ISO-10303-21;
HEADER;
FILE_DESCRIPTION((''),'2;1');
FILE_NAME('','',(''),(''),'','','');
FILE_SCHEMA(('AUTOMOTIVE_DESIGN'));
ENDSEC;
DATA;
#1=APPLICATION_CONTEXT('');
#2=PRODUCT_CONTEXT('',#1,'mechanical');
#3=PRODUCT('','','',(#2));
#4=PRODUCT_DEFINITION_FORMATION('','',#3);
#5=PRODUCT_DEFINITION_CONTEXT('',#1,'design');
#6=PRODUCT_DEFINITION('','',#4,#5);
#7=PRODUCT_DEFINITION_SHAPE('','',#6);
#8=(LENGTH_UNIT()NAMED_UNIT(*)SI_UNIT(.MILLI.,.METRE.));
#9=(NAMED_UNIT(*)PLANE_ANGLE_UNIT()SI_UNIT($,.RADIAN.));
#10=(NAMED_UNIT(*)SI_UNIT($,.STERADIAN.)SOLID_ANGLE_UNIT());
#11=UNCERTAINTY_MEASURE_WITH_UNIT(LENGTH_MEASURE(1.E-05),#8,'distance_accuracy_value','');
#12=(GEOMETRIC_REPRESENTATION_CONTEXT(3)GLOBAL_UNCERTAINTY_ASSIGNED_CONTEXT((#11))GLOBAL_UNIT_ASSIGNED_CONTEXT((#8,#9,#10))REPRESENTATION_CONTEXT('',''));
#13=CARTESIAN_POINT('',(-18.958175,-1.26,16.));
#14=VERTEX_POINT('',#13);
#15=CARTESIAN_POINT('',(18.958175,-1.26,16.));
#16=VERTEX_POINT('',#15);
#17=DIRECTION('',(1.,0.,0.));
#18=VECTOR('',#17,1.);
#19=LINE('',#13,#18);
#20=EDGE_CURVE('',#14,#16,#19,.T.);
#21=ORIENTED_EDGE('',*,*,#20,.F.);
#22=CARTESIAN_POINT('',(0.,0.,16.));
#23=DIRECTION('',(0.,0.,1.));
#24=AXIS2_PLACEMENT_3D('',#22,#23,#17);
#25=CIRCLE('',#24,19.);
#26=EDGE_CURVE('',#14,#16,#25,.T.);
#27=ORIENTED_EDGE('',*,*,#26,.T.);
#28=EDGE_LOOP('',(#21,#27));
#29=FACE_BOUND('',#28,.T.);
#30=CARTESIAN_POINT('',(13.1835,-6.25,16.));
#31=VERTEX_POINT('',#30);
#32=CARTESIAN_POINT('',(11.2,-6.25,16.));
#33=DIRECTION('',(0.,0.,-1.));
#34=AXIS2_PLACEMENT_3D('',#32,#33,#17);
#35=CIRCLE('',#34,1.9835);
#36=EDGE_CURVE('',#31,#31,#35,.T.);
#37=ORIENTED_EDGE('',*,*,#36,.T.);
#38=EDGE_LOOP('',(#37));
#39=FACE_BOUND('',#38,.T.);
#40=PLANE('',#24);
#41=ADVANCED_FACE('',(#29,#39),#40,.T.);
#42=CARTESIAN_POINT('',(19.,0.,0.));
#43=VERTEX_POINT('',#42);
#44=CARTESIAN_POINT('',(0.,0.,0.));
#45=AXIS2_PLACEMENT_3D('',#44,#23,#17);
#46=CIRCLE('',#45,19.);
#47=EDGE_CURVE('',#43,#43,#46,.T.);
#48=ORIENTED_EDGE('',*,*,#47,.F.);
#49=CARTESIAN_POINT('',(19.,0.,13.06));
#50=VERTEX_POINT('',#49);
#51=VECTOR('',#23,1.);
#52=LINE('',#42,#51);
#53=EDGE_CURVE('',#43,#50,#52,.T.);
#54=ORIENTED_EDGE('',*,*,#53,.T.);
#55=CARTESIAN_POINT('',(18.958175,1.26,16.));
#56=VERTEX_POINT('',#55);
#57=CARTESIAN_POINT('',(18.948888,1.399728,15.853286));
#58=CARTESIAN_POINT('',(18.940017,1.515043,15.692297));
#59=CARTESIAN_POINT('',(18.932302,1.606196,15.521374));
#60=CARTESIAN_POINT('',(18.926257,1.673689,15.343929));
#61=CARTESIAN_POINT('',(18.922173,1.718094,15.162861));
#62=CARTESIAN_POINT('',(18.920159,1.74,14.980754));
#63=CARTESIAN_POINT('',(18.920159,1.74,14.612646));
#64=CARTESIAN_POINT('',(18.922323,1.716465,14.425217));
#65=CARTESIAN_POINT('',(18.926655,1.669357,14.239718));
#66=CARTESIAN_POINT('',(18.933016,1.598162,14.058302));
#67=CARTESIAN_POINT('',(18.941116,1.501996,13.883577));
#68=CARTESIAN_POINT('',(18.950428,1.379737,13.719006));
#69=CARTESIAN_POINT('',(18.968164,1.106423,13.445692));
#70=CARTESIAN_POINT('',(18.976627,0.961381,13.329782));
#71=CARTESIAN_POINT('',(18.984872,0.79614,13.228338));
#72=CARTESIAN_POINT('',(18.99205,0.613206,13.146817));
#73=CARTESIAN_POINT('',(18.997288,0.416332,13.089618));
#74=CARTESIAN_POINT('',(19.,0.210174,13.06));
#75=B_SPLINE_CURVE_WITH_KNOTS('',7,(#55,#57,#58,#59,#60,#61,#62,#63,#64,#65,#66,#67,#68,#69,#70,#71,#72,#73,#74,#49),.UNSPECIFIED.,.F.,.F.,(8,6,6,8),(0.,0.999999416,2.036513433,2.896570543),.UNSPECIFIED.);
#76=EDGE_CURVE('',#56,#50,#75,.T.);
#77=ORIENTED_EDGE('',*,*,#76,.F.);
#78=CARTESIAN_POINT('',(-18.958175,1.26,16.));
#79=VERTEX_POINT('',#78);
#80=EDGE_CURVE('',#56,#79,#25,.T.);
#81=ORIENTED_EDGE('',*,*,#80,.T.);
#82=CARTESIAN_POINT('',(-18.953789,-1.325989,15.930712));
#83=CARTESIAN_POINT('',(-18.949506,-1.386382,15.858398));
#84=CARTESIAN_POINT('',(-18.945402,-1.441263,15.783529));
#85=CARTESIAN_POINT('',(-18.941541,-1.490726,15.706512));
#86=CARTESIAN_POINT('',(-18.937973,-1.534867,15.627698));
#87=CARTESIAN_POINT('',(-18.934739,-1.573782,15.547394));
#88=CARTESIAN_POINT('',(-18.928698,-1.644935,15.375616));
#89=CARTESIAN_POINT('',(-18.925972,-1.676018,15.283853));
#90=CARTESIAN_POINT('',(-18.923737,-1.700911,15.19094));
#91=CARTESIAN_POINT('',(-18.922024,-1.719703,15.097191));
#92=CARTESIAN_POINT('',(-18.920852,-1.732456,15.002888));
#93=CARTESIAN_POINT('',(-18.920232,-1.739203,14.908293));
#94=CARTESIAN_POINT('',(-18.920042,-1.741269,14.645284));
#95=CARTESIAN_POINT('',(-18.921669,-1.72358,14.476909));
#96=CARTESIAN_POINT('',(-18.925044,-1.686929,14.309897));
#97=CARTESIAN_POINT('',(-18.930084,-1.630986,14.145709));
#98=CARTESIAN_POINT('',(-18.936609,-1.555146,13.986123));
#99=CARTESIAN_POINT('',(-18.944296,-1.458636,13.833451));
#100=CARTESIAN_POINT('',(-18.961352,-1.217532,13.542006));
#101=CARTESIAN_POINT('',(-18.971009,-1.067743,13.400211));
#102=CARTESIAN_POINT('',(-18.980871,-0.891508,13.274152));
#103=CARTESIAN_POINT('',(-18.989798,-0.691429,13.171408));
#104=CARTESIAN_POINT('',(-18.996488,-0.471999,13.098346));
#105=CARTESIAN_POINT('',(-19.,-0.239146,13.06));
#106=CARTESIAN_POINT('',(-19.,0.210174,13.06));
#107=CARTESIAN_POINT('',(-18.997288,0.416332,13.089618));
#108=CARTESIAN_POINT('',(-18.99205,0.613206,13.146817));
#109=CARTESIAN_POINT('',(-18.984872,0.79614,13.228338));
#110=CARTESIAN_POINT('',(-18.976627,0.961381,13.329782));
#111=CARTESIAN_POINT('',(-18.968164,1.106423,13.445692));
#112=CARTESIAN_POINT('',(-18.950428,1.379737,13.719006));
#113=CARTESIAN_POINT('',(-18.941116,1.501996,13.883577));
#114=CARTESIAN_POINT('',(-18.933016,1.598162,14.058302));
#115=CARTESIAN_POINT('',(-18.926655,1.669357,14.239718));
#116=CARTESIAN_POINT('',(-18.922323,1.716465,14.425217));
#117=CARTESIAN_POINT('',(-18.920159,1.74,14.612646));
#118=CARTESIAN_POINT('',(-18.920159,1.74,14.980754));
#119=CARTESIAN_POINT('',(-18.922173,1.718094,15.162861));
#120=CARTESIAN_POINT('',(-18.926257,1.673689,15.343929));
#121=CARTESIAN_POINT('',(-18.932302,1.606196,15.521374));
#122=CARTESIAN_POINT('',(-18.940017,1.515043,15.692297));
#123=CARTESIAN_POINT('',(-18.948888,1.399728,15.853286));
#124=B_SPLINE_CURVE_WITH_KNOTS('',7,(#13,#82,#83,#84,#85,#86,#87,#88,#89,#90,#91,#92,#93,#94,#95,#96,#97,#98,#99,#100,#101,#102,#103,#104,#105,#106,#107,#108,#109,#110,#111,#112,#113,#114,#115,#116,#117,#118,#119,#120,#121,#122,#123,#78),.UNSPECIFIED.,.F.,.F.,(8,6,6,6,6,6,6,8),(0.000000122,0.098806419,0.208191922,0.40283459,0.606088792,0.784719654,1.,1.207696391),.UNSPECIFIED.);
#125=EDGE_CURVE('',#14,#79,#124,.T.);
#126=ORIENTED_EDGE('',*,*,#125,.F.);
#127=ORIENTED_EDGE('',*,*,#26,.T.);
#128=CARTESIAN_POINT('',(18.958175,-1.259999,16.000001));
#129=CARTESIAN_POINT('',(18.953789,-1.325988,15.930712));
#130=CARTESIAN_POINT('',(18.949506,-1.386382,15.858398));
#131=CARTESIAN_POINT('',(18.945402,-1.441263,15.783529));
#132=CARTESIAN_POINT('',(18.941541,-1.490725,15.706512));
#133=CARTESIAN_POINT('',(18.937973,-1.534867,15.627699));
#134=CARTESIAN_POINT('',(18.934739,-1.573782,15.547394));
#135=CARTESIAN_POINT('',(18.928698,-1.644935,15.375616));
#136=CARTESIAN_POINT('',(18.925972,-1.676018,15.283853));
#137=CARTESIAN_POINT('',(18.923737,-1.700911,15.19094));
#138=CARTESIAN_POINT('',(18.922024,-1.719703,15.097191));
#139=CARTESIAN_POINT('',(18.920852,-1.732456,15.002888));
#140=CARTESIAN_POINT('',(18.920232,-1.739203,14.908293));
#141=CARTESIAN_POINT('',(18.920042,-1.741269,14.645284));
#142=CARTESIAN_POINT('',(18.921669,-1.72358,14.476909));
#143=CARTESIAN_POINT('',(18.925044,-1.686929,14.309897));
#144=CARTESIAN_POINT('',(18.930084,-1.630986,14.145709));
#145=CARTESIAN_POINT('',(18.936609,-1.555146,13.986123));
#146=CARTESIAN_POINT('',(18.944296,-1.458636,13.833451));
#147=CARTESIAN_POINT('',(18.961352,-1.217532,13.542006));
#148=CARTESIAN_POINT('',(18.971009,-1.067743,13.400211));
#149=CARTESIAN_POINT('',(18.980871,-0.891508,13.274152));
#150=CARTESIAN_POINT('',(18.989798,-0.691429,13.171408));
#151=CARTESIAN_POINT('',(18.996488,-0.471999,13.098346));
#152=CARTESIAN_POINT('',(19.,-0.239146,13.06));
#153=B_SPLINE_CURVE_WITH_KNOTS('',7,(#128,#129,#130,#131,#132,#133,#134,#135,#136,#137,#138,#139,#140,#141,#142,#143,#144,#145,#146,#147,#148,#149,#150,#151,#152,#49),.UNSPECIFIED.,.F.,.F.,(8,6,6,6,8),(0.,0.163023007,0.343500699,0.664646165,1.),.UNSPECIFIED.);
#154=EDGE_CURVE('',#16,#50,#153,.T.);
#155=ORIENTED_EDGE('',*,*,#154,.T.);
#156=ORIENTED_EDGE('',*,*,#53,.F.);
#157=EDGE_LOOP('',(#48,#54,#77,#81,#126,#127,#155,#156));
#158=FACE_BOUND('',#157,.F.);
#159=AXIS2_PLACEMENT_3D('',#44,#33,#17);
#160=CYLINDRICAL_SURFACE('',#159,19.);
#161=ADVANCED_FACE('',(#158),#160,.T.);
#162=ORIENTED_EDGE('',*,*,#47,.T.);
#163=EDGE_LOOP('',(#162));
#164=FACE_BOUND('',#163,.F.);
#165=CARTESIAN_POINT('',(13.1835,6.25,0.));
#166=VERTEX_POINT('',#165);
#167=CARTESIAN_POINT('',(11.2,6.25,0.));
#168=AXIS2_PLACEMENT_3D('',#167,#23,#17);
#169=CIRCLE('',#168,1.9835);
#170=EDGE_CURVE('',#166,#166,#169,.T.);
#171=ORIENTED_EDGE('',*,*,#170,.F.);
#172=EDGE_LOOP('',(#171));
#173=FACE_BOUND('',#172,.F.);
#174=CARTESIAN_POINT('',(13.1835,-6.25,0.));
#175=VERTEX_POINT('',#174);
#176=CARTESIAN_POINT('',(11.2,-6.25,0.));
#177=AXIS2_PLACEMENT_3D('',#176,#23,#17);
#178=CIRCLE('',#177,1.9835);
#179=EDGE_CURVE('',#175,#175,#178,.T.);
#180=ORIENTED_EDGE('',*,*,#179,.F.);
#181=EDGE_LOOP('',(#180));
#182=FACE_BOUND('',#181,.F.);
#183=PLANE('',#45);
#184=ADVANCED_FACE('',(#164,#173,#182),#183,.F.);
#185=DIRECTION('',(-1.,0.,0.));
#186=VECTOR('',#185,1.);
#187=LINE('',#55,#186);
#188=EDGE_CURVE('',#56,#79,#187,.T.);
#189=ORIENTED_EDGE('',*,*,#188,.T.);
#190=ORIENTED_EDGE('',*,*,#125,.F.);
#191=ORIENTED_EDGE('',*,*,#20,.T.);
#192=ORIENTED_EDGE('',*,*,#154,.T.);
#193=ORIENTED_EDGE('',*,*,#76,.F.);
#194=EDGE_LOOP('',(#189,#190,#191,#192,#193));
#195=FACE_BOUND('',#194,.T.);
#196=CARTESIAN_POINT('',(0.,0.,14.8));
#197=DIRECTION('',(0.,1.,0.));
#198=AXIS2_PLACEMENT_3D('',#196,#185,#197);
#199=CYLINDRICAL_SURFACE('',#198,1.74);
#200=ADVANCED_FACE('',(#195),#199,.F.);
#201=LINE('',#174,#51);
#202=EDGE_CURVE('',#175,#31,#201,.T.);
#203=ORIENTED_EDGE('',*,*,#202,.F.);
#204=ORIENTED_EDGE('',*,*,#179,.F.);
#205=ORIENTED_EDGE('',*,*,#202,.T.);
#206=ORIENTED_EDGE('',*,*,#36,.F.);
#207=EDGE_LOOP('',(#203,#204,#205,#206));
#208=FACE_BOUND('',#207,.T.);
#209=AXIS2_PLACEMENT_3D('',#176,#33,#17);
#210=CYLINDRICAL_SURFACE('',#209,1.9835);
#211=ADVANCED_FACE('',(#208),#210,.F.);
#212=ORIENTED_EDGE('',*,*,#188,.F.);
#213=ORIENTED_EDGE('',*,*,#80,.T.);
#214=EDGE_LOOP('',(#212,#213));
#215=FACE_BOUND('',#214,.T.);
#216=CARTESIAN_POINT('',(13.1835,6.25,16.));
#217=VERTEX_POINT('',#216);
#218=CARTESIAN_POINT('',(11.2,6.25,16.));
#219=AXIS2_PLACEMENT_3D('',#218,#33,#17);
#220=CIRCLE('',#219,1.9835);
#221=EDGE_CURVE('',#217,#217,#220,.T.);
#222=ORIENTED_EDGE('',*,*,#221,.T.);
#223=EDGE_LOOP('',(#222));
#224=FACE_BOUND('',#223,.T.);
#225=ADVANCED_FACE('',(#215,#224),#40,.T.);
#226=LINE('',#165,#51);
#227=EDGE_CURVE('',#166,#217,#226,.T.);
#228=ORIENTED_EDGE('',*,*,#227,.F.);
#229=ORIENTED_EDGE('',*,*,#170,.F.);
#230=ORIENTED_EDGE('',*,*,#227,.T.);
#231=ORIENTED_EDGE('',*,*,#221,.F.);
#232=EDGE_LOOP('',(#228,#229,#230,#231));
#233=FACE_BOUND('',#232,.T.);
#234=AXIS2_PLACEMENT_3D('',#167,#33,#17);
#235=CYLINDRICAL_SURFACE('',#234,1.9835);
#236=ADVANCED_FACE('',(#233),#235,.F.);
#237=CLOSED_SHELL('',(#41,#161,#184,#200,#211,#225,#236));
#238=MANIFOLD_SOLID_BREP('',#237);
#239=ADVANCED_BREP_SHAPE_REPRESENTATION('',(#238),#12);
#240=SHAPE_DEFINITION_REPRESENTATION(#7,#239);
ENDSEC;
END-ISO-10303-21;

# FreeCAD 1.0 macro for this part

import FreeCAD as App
import Part
import Sketcher

V = App.Vector

doc = App.newDocument("Part")
body = doc.addObject("PartDesign::Body", "Body")

# Sketch on XY plane
sketch1 = doc.addObject("Sketcher::SketchObject", "Sketch")
body.addObject(sketch1)
sketch1.AttachmentSupport = (doc.XY_Plane, [""])
sketch1.MapMode = "FlatFace"
sketch1.addGeometry(Part.Circle(V(0, 0, 0), V(0, 0, 1), 19), False)
sketch1.addConstraint([
    Sketcher.Constraint("Coincident", 0, 3, -1, 1),
    Sketcher.Constraint("Diameter", 0, 38.0),
])
pad1 = doc.addObject("PartDesign::Pad", "Pad")
body.addObject(pad1)
pad1.Profile = sketch1
pad1.Length = 16

# Sketch on YZ plane
sketch2 = doc.addObject("Sketcher::SketchObject", "Sketch001")
body.addObject(sketch2)
sketch2.AttachmentSupport = (doc.YZ_Plane, [""])
sketch2.MapMode = "FlatFace"
sketch2.addGeometry(Part.Circle(V(0, 14.8, 0), V(0, 0, 1), 1.7), False)
sketch2.addConstraint([
    Sketcher.Constraint("PointOnObject", 0, 3, -2),
    Sketcher.Constraint("Diameter", 0, 3.48),
    Sketcher.Constraint("DistanceY", -1, 1, 0, 3, 14.8),
])
pocket1 = doc.addObject("PartDesign::Pocket", "Pocket")
body.addObject(pocket1)
pocket1.Profile = sketch2
pocket1.Type = "ThroughAll"
pocket1.Midplane = True

# Sketch on XY plane
sketch3 = doc.addObject("Sketcher::SketchObject", "Sketch002")
body.addObject(sketch3)
sketch3.AttachmentSupport = (doc.XY_Plane, [""])
sketch3.MapMode = "FlatFace"
sketch3.addGeometry([
    Part.Circle(V(11.2, -6.2, 0), V(0, 0, 1), 2),
    Part.Circle(V(11.2, 6.2, 0), V(0, 0, 1), 2),
], False)
sketch3.addConstraint([
    Sketcher.Constraint("Equal", 0, 1),
    Sketcher.Constraint("Symmetric", 0, 3, 1, 3, -1),
    Sketcher.Constraint("Diameter", 0, 3.967),
    Sketcher.Constraint("DistanceX", -1, 1, 0, 3, 11.2),
    Sketcher.Constraint("DistanceY", 0, 3, 1, 3, 12.5),
])
pocket2 = doc.addObject("PartDesign::Pocket", "Pocket001")
body.addObject(pocket2)
pocket2.Profile = sketch3
pocket2.Type = "ThroughAll"
pocket2.Reversed = True

doc.recompute()
